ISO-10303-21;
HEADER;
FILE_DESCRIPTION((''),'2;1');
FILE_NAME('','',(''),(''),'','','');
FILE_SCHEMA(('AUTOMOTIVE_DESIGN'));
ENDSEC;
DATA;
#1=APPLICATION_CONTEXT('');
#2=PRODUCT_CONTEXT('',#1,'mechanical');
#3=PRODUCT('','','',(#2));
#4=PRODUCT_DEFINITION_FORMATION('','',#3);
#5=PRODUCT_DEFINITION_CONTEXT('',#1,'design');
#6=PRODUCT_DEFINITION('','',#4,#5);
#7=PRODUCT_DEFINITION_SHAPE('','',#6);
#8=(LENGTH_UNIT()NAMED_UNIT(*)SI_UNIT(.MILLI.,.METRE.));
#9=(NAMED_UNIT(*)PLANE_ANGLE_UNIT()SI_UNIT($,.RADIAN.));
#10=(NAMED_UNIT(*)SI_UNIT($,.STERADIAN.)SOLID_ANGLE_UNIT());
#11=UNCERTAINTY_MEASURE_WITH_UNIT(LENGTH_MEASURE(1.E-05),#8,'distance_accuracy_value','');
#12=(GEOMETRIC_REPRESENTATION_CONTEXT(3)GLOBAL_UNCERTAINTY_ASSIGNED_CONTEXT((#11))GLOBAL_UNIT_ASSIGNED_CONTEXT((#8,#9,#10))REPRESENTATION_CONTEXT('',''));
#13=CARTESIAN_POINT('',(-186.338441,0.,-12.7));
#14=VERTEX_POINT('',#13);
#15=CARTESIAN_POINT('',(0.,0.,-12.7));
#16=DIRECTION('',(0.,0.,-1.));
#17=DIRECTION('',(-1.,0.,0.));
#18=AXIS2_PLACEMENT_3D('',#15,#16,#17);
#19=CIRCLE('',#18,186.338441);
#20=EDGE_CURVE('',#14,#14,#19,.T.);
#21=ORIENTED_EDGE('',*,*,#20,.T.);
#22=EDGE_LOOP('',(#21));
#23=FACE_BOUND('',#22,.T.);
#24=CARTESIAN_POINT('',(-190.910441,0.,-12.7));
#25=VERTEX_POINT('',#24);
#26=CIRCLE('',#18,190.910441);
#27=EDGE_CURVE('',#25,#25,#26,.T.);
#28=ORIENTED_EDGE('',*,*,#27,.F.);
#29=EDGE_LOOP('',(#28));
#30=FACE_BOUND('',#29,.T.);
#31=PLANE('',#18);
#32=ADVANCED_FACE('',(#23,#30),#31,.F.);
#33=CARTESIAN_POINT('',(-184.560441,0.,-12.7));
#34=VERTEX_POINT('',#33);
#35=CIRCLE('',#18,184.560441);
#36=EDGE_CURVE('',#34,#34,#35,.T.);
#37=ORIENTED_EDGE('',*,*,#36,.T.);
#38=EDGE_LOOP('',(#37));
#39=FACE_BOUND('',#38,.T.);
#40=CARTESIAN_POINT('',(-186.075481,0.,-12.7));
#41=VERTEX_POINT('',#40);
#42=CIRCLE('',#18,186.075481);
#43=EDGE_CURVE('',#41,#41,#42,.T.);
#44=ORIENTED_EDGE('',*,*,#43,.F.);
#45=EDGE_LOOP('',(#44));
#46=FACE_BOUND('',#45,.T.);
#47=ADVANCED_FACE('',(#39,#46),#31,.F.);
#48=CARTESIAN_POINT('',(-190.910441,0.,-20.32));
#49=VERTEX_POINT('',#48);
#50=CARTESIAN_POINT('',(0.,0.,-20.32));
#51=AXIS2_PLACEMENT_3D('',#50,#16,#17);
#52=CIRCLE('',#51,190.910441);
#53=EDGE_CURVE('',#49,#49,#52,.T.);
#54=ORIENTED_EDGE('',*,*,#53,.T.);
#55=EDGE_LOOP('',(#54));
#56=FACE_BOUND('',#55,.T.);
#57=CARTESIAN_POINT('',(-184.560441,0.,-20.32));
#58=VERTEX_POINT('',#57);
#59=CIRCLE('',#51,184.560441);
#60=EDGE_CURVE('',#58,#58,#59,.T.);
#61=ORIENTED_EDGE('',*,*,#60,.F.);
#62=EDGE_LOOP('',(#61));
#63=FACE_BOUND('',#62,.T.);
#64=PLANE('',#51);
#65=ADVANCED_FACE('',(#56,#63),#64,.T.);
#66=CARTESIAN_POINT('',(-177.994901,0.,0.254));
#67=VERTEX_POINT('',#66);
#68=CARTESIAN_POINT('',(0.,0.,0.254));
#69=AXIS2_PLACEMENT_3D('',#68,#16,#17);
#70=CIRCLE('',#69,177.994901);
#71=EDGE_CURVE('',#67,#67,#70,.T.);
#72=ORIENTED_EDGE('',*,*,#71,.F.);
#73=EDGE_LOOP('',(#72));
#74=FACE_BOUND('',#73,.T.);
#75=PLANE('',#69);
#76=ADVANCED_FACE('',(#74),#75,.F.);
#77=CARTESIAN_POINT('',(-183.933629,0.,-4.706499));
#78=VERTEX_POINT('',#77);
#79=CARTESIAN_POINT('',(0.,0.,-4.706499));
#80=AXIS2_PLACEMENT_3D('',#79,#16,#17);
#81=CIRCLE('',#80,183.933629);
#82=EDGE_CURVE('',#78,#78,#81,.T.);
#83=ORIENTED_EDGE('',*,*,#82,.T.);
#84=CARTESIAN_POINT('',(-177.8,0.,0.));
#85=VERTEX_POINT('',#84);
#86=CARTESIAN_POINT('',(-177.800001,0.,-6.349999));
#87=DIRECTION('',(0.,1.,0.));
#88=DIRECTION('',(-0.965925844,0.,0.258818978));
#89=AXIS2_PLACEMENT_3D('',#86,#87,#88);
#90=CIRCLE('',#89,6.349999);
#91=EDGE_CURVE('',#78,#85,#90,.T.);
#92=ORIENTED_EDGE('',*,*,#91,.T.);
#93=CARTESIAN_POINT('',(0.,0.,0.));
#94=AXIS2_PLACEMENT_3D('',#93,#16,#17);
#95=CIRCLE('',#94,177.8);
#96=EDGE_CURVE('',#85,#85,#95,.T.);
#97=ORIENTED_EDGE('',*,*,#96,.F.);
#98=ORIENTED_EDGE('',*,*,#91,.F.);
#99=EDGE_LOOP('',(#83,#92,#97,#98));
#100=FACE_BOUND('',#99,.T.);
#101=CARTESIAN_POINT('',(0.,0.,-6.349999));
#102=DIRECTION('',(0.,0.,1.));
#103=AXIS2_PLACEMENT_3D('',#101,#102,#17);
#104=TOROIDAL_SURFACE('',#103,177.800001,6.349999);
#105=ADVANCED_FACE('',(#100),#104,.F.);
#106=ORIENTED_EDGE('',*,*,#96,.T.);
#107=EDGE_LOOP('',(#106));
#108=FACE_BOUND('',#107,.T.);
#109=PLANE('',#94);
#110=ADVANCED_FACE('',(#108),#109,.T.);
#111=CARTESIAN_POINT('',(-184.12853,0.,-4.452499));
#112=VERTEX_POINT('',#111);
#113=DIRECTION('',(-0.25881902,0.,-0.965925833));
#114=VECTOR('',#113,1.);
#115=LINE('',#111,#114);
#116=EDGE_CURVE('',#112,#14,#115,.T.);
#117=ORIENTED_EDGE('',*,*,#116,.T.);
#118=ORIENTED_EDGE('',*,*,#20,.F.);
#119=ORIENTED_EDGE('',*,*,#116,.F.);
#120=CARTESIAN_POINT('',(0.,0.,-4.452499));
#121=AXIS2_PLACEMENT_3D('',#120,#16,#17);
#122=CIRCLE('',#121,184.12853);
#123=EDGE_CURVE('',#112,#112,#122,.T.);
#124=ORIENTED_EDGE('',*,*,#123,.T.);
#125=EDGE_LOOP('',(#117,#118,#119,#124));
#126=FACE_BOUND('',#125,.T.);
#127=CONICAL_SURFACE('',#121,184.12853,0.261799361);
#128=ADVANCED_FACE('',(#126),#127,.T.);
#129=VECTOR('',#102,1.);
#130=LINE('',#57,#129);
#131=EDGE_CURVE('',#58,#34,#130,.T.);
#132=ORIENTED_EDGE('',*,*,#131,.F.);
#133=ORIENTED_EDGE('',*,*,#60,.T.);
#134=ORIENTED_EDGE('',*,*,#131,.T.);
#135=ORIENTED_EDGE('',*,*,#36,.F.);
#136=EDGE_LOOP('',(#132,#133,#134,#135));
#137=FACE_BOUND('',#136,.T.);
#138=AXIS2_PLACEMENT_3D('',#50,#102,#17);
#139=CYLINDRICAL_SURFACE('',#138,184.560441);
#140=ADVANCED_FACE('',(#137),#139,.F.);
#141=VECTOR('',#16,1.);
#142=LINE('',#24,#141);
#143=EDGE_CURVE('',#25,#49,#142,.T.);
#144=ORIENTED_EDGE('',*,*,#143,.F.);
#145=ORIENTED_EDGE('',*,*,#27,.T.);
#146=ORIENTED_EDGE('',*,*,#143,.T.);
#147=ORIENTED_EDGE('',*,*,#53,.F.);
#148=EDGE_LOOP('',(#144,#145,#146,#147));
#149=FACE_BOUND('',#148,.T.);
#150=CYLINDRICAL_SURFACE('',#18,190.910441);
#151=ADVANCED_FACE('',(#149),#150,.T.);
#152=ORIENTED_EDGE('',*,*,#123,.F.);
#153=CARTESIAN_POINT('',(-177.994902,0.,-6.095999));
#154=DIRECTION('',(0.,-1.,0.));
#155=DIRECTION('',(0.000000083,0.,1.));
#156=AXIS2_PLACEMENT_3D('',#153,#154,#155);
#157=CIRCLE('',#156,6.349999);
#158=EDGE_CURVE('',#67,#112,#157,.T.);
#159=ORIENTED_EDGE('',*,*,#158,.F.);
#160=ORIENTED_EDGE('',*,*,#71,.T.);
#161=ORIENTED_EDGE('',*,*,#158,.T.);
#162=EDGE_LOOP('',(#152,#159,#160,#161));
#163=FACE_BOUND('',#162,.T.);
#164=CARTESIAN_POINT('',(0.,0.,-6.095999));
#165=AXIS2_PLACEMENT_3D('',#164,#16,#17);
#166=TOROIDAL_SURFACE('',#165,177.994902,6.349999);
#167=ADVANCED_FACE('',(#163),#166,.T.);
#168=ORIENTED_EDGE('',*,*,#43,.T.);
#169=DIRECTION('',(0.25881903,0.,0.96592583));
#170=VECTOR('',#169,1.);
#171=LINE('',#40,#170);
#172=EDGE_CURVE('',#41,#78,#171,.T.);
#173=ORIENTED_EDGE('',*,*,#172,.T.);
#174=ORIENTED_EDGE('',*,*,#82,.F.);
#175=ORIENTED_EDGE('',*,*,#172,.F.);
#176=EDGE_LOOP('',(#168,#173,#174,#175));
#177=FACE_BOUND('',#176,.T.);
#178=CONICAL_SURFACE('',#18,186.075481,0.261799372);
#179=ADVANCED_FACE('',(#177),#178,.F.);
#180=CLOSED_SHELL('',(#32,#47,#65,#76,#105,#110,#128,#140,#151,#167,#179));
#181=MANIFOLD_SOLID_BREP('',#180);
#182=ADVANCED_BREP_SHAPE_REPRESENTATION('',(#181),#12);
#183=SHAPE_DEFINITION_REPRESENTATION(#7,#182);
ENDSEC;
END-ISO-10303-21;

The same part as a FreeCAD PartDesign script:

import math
import FreeCAD as App
import Part
import Sketcher

V = App.Vector
Q = App.Units.Quantity

doc = App.newDocument("Part")
body = doc.addObject("PartDesign::Body", "Body")

sketch1 = body.newObject("Sketcher::SketchObject", "Sketch")
sketch1.AttachmentSupport = (doc.getObject("XZ_Plane"), [""])
sketch1.MapMode = "FlatFace"
sketch1.addGeometry(Part.LineSegment(V(-177.8, 0, 0), V(0, 0, 0)), False)
sketch1.addGeometry(Part.LineSegment(V(0, 0, 0), V(0, 0.25, 0)), False)
sketch1.addGeometry(Part.LineSegment(V(0, 0.25, 0), V(-177.99, 0.25, 0)), False)
sketch1.addGeometry(Part.ArcOfCircle(Part.Circle(V(-177.99, -6.1, 0), V(0, 0, 1), 6.35), math.radians(90), math.radians(165)), False)
sketch1.addGeometry(Part.LineSegment(V(-184.13, -4.45, 0), V(-186.34, -12.7, 0)), False)
sketch1.addGeometry(Part.LineSegment(V(-186.34, -12.7, 0), V(-190.91, -12.7, 0)), False)
sketch1.addGeometry(Part.LineSegment(V(-190.91, -12.7, 0), V(-190.91, -20.32, 0)), False)
sketch1.addGeometry(Part.LineSegment(V(-190.91, -20.32, 0), V(-184.56, -20.32, 0)), False)
sketch1.addGeometry(Part.LineSegment(V(-184.56, -20.32, 0), V(-184.56, -12.7, 0)), False)
sketch1.addGeometry(Part.LineSegment(V(-184.56, -12.7, 0), V(-186.08, -12.7, 0)), False)
sketch1.addGeometry(Part.LineSegment(V(-186.08, -12.7, 0), V(-183.93, -4.71, 0)), False)
sketch1.addGeometry(Part.ArcOfCircle(Part.Circle(V(-177.8, -6.35, 0), V(0, 0, 1), 6.35), math.radians(90), math.radians(165)), False)
sketch1.addConstraint(Sketcher.Constraint("Coincident", 0, 2, 1, 1))
sketch1.addConstraint(Sketcher.Constraint("Coincident", 1, 2, 2, 1))
sketch1.addConstraint(Sketcher.Constraint("Tangent", 2, 2, 3, 1))
sketch1.addConstraint(Sketcher.Constraint("Tangent", 3, 2, 4, 1))
sketch1.addConstraint(Sketcher.Constraint("Coincident", 4, 2, 5, 1))
sketch1.addConstraint(Sketcher.Constraint("Coincident", 5, 2, 6, 1))
sketch1.addConstraint(Sketcher.Constraint("Coincident", 6, 2, 7, 1))
sketch1.addConstraint(Sketcher.Constraint("Coincident", 7, 2, 8, 1))
sketch1.addConstraint(Sketcher.Constraint("Coincident", 8, 2, 9, 1))
sketch1.addConstraint(Sketcher.Constraint("Coincident", 9, 2, 10, 1))
sketch1.addConstraint(Sketcher.Constraint("Tangent", 10, 2, 11, 2))
sketch1.addConstraint(Sketcher.Constraint("Tangent", 11, 1, 0, 1))
sketch1.addConstraint(Sketcher.Constraint("Horizontal", 0))
sketch1.addConstraint(Sketcher.Constraint("Vertical", 1))
sketch1.addConstraint(Sketcher.Constraint("Horizontal", 2))
sketch1.addConstraint(Sketcher.Constraint("Horizontal", 5))
sketch1.addConstraint(Sketcher.Constraint("Vertical", 6))
sketch1.addConstraint(Sketcher.Constraint("Horizontal", 7))
sketch1.addConstraint(Sketcher.Constraint("Vertical", 8))
sketch1.addConstraint(Sketcher.Constraint("Horizontal", 9))
sketch1.addConstraint(Sketcher.Constraint("Coincident", 0, 2, -1, 1))
sketch1.addConstraint(Sketcher.Constraint("Equal", 3, 11))
sketch1.addConstraint(Sketcher.Constraint("Parallel", 4, 10))
sketch1.addConstraint(Sketcher.Constraint("Horizontal", 5, 2, 8, 2))
sketch1.addConstraint(Sketcher.Constraint("DistanceX", 0, 1, 0, 2, Q("7 in")))
sketch1.addConstraint(Sketcher.Constraint("Radius", 3, Q("0.25 in")))
sketch1.addConstraint(Sketcher.Constraint("DistanceY", 6, 2, 6, 1, Q("0.3 in")))
sketch1.addConstraint(Sketcher.Constraint("Angle", 4, Q("-104.999998 deg")))
sketch1.addConstraint(Sketcher.Constraint("DistanceX", 5, 2, 5, 1, Q("0.18 in")))
sketch1.addConstraint(Sketcher.Constraint("DistanceX", 7, 1, 7, 2, Q("0.25 in")))
sketch1.addConstraint(Sketcher.Constraint("DistanceY", 1, 1, 1, 2, Q("0.01 in")))
sketch1.addConstraint(Sketcher.Constraint("DistanceY", 4, 2, -1, 1, Q("0.5 in")))
sketch1.addConstraint(Sketcher.Constraint("DistanceX", 2, 2, 2, 1, Q("177.994901 mm")))
revolution = body.newObject("PartDesign::Revolution", "Revolution")
revolution.Profile = sketch1
revolution.ReferenceAxis = (sketch1, ["V_Axis"])
revolution.Angle = 360

doc.recompute()
